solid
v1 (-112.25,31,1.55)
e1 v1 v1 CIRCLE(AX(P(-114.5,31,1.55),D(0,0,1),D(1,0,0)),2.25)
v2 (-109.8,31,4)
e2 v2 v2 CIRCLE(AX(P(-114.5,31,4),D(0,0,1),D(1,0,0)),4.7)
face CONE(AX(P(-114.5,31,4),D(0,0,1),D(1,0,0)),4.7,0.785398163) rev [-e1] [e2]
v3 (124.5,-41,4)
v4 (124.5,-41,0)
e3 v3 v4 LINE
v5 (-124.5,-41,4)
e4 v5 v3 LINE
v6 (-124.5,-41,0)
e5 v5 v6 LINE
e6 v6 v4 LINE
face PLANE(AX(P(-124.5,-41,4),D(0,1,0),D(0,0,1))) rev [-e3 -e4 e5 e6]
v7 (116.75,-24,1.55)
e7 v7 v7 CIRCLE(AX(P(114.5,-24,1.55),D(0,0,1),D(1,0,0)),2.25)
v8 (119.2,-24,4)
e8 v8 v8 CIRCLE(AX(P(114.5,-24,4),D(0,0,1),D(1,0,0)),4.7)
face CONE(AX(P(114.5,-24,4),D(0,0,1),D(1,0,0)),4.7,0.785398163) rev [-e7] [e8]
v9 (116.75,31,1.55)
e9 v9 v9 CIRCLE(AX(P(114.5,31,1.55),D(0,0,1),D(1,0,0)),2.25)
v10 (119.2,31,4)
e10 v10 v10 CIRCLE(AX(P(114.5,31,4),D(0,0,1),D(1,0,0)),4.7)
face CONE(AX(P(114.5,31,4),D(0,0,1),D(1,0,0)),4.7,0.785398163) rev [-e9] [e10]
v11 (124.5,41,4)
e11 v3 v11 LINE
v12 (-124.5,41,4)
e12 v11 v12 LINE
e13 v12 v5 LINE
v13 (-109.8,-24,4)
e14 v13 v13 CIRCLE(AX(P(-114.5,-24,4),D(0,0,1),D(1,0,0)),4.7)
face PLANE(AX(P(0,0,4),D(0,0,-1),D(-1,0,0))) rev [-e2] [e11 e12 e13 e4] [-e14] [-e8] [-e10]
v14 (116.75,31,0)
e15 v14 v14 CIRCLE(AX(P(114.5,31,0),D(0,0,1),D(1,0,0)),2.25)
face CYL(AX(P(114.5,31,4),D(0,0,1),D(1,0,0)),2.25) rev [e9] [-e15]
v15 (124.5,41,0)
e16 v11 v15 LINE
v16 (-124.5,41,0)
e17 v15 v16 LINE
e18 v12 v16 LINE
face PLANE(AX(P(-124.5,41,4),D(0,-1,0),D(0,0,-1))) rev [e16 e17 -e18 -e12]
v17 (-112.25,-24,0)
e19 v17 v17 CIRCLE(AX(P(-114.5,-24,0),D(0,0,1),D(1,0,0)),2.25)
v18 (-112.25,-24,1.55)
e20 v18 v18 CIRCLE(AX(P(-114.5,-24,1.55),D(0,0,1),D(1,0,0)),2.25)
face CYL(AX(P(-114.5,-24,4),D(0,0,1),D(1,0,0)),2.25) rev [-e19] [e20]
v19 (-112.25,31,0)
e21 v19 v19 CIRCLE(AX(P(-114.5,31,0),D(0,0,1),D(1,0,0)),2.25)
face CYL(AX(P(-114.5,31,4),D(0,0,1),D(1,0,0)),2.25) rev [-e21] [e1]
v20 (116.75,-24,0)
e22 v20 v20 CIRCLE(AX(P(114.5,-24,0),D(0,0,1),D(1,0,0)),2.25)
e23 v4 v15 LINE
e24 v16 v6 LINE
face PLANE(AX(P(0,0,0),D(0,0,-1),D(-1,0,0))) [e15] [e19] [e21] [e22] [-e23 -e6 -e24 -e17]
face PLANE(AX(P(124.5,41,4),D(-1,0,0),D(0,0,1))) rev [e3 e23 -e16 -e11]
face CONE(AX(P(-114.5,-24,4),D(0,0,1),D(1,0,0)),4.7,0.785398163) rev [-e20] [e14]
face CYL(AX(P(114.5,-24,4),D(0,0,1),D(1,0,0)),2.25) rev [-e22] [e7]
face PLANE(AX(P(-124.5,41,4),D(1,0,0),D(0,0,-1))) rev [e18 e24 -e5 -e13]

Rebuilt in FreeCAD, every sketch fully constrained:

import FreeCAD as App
import Part
import Sketcher
from FreeCAD import Vector
Q = App.Units.Quantity


def add_polygon(sketch, points):
    """Adds a closed chain of lines whose ends are joined by coincident constraints."""
    first, n = sketch.GeometryCount, len(points)
    for a, b in zip(points, points[1:] + points[:1]):
        sketch.addGeometry(Part.LineSegment(App.Vector(*a, 0), App.Vector(*b, 0)), False)
    for i in range(n):
        sketch.addConstraint(Sketcher.Constraint("Coincident", first + i, 2, first + (i + 1) % n, 1))

doc = App.newDocument("Part")
body = doc.addObject("PartDesign::Body", "Body")

# Sketch on XY plane
sketch1 = body.newObject("Sketcher::SketchObject", "Sketch")
sketch1.AttachmentSupport = (doc.getObject("XY_Plane"), [""])
sketch1.MapMode = "FlatFace"
add_polygon(sketch1, [(-124, 41), (-124, -41), (124, -41), (124, 41)])  # lines 0-3
sketch1.addConstraint(Sketcher.Constraint("Vertical", 0))
sketch1.addConstraint(Sketcher.Constraint("Horizontal", 1))
sketch1.addConstraint(Sketcher.Constraint("Vertical", 2))
sketch1.addConstraint(Sketcher.Constraint("Horizontal", 3))
sketch1.addConstraint(Sketcher.Constraint("Symmetric", 0, 2, 2, 2, -1, 1))
sketch1.addConstraint(Sketcher.Constraint("DistanceX", 1, 1, 1, 2, 249.0))
sketch1.addConstraint(Sketcher.Constraint("DistanceY", 0, 2, 0, 1, 82.0))
pad1 = body.newObject("PartDesign::Pad", "Pad")
pad1.Profile = sketch1
pad1.Length = 4

# Sketch on YZ plane
sketch2 = body.newObject("Sketcher::SketchObject", "Sketch001")
sketch2.AttachmentSupport = (doc.getObject("YZ_Plane"), [""])
sketch2.MapMode = "FlatFace"
sketch2.AttachmentOffset = App.Placement(Vector(0, 0, -114.5), App.Rotation())
add_polygon(sketch2, [(-24, 0), (-24, 4), (-28.7, 4), (-26.2, 1.6), (-26.2, 0)])  # lines 0-4
sketch2.addGeometry(Part.LineSegment(Vector(-24, 4, 0), Vector(-24, 0, 0)), True)  # axis
sketch2.addConstraint(Sketcher.Constraint("Vertical", 0))
sketch2.addConstraint(Sketcher.Constraint("Horizontal", 1))
sketch2.addConstraint(Sketcher.Constraint("Vertical", 3))
sketch2.addConstraint(Sketcher.Constraint("Horizontal", 4))
sketch2.addConstraint(Sketcher.Constraint("Vertical", 5))
sketch2.addConstraint(Sketcher.Constraint("Coincident", 5, 1, 0, 2))
sketch2.addConstraint(Sketcher.Constraint("PointOnObject", 3, 2, -1))
sketch2.addConstraint(Sketcher.Constraint("PointOnObject", 5, 2, -1))
sketch2.addConstraint(Sketcher.Constraint("DistanceY", 0, 1, 0, 2, 4.0))
sketch2.addConstraint(Sketcher.Constraint("Angle", 2, Q("-45 deg")))
sketch2.addConstraint(Sketcher.Constraint("DistanceX", 1, 2, 1, 1, 4.7))
sketch2.addConstraint(Sketcher.Constraint("DistanceX", 0, 2, -1, 1, 24.0))
sketch2.addConstraint(Sketcher.Constraint("DistanceX", 4, 1, 4, 2, 2.25))
groove = body.newObject("PartDesign::Groove", "Groove")
groove.Profile = sketch2
groove.ReferenceAxis = (sketch2, ["Axis0"])
groove.Angle = 360
doc.recompute()

linearpattern = body.newObject("PartDesign::LinearPattern", "LinearPattern")
linearpattern.Originals = [groove]
linearpattern.Direction = (doc.getObject("Y_Axis"), [""])
linearpattern.Mode = "offset"
linearpattern.Offset = 55
linearpattern.Occurrences = 2
body.Tip = linearpattern
doc.recompute()

linearpattern2 = body.newObject("PartDesign::LinearPattern", "LinearPattern001")
linearpattern2.Originals = [groove]
linearpattern2.Direction = (doc.getObject("X_Axis"), [""])
linearpattern2.Mode = "offset"
linearpattern2.Offset = 229
linearpattern2.Occurrences = 2
body.Tip = linearpattern2
doc.recompute()

datumline = body.newObject("PartDesign::Line", "DatumLine")
datumline.Placement = App.Placement(Vector(0, 0, 0), App.Rotation(Vector(0, 0, 1), Vector(0.972348746, 0.233533542, 0)))
linearpattern3 = body.newObject("PartDesign::LinearPattern", "LinearPattern002")
linearpattern3.Originals = [groove]
linearpattern3.Direction = (datumline, [""])
linearpattern3.Mode = "offset"
linearpattern3.Offset = 235.512208
linearpattern3.Occurrences = 2
body.Tip = linearpattern3

doc.recompute()
